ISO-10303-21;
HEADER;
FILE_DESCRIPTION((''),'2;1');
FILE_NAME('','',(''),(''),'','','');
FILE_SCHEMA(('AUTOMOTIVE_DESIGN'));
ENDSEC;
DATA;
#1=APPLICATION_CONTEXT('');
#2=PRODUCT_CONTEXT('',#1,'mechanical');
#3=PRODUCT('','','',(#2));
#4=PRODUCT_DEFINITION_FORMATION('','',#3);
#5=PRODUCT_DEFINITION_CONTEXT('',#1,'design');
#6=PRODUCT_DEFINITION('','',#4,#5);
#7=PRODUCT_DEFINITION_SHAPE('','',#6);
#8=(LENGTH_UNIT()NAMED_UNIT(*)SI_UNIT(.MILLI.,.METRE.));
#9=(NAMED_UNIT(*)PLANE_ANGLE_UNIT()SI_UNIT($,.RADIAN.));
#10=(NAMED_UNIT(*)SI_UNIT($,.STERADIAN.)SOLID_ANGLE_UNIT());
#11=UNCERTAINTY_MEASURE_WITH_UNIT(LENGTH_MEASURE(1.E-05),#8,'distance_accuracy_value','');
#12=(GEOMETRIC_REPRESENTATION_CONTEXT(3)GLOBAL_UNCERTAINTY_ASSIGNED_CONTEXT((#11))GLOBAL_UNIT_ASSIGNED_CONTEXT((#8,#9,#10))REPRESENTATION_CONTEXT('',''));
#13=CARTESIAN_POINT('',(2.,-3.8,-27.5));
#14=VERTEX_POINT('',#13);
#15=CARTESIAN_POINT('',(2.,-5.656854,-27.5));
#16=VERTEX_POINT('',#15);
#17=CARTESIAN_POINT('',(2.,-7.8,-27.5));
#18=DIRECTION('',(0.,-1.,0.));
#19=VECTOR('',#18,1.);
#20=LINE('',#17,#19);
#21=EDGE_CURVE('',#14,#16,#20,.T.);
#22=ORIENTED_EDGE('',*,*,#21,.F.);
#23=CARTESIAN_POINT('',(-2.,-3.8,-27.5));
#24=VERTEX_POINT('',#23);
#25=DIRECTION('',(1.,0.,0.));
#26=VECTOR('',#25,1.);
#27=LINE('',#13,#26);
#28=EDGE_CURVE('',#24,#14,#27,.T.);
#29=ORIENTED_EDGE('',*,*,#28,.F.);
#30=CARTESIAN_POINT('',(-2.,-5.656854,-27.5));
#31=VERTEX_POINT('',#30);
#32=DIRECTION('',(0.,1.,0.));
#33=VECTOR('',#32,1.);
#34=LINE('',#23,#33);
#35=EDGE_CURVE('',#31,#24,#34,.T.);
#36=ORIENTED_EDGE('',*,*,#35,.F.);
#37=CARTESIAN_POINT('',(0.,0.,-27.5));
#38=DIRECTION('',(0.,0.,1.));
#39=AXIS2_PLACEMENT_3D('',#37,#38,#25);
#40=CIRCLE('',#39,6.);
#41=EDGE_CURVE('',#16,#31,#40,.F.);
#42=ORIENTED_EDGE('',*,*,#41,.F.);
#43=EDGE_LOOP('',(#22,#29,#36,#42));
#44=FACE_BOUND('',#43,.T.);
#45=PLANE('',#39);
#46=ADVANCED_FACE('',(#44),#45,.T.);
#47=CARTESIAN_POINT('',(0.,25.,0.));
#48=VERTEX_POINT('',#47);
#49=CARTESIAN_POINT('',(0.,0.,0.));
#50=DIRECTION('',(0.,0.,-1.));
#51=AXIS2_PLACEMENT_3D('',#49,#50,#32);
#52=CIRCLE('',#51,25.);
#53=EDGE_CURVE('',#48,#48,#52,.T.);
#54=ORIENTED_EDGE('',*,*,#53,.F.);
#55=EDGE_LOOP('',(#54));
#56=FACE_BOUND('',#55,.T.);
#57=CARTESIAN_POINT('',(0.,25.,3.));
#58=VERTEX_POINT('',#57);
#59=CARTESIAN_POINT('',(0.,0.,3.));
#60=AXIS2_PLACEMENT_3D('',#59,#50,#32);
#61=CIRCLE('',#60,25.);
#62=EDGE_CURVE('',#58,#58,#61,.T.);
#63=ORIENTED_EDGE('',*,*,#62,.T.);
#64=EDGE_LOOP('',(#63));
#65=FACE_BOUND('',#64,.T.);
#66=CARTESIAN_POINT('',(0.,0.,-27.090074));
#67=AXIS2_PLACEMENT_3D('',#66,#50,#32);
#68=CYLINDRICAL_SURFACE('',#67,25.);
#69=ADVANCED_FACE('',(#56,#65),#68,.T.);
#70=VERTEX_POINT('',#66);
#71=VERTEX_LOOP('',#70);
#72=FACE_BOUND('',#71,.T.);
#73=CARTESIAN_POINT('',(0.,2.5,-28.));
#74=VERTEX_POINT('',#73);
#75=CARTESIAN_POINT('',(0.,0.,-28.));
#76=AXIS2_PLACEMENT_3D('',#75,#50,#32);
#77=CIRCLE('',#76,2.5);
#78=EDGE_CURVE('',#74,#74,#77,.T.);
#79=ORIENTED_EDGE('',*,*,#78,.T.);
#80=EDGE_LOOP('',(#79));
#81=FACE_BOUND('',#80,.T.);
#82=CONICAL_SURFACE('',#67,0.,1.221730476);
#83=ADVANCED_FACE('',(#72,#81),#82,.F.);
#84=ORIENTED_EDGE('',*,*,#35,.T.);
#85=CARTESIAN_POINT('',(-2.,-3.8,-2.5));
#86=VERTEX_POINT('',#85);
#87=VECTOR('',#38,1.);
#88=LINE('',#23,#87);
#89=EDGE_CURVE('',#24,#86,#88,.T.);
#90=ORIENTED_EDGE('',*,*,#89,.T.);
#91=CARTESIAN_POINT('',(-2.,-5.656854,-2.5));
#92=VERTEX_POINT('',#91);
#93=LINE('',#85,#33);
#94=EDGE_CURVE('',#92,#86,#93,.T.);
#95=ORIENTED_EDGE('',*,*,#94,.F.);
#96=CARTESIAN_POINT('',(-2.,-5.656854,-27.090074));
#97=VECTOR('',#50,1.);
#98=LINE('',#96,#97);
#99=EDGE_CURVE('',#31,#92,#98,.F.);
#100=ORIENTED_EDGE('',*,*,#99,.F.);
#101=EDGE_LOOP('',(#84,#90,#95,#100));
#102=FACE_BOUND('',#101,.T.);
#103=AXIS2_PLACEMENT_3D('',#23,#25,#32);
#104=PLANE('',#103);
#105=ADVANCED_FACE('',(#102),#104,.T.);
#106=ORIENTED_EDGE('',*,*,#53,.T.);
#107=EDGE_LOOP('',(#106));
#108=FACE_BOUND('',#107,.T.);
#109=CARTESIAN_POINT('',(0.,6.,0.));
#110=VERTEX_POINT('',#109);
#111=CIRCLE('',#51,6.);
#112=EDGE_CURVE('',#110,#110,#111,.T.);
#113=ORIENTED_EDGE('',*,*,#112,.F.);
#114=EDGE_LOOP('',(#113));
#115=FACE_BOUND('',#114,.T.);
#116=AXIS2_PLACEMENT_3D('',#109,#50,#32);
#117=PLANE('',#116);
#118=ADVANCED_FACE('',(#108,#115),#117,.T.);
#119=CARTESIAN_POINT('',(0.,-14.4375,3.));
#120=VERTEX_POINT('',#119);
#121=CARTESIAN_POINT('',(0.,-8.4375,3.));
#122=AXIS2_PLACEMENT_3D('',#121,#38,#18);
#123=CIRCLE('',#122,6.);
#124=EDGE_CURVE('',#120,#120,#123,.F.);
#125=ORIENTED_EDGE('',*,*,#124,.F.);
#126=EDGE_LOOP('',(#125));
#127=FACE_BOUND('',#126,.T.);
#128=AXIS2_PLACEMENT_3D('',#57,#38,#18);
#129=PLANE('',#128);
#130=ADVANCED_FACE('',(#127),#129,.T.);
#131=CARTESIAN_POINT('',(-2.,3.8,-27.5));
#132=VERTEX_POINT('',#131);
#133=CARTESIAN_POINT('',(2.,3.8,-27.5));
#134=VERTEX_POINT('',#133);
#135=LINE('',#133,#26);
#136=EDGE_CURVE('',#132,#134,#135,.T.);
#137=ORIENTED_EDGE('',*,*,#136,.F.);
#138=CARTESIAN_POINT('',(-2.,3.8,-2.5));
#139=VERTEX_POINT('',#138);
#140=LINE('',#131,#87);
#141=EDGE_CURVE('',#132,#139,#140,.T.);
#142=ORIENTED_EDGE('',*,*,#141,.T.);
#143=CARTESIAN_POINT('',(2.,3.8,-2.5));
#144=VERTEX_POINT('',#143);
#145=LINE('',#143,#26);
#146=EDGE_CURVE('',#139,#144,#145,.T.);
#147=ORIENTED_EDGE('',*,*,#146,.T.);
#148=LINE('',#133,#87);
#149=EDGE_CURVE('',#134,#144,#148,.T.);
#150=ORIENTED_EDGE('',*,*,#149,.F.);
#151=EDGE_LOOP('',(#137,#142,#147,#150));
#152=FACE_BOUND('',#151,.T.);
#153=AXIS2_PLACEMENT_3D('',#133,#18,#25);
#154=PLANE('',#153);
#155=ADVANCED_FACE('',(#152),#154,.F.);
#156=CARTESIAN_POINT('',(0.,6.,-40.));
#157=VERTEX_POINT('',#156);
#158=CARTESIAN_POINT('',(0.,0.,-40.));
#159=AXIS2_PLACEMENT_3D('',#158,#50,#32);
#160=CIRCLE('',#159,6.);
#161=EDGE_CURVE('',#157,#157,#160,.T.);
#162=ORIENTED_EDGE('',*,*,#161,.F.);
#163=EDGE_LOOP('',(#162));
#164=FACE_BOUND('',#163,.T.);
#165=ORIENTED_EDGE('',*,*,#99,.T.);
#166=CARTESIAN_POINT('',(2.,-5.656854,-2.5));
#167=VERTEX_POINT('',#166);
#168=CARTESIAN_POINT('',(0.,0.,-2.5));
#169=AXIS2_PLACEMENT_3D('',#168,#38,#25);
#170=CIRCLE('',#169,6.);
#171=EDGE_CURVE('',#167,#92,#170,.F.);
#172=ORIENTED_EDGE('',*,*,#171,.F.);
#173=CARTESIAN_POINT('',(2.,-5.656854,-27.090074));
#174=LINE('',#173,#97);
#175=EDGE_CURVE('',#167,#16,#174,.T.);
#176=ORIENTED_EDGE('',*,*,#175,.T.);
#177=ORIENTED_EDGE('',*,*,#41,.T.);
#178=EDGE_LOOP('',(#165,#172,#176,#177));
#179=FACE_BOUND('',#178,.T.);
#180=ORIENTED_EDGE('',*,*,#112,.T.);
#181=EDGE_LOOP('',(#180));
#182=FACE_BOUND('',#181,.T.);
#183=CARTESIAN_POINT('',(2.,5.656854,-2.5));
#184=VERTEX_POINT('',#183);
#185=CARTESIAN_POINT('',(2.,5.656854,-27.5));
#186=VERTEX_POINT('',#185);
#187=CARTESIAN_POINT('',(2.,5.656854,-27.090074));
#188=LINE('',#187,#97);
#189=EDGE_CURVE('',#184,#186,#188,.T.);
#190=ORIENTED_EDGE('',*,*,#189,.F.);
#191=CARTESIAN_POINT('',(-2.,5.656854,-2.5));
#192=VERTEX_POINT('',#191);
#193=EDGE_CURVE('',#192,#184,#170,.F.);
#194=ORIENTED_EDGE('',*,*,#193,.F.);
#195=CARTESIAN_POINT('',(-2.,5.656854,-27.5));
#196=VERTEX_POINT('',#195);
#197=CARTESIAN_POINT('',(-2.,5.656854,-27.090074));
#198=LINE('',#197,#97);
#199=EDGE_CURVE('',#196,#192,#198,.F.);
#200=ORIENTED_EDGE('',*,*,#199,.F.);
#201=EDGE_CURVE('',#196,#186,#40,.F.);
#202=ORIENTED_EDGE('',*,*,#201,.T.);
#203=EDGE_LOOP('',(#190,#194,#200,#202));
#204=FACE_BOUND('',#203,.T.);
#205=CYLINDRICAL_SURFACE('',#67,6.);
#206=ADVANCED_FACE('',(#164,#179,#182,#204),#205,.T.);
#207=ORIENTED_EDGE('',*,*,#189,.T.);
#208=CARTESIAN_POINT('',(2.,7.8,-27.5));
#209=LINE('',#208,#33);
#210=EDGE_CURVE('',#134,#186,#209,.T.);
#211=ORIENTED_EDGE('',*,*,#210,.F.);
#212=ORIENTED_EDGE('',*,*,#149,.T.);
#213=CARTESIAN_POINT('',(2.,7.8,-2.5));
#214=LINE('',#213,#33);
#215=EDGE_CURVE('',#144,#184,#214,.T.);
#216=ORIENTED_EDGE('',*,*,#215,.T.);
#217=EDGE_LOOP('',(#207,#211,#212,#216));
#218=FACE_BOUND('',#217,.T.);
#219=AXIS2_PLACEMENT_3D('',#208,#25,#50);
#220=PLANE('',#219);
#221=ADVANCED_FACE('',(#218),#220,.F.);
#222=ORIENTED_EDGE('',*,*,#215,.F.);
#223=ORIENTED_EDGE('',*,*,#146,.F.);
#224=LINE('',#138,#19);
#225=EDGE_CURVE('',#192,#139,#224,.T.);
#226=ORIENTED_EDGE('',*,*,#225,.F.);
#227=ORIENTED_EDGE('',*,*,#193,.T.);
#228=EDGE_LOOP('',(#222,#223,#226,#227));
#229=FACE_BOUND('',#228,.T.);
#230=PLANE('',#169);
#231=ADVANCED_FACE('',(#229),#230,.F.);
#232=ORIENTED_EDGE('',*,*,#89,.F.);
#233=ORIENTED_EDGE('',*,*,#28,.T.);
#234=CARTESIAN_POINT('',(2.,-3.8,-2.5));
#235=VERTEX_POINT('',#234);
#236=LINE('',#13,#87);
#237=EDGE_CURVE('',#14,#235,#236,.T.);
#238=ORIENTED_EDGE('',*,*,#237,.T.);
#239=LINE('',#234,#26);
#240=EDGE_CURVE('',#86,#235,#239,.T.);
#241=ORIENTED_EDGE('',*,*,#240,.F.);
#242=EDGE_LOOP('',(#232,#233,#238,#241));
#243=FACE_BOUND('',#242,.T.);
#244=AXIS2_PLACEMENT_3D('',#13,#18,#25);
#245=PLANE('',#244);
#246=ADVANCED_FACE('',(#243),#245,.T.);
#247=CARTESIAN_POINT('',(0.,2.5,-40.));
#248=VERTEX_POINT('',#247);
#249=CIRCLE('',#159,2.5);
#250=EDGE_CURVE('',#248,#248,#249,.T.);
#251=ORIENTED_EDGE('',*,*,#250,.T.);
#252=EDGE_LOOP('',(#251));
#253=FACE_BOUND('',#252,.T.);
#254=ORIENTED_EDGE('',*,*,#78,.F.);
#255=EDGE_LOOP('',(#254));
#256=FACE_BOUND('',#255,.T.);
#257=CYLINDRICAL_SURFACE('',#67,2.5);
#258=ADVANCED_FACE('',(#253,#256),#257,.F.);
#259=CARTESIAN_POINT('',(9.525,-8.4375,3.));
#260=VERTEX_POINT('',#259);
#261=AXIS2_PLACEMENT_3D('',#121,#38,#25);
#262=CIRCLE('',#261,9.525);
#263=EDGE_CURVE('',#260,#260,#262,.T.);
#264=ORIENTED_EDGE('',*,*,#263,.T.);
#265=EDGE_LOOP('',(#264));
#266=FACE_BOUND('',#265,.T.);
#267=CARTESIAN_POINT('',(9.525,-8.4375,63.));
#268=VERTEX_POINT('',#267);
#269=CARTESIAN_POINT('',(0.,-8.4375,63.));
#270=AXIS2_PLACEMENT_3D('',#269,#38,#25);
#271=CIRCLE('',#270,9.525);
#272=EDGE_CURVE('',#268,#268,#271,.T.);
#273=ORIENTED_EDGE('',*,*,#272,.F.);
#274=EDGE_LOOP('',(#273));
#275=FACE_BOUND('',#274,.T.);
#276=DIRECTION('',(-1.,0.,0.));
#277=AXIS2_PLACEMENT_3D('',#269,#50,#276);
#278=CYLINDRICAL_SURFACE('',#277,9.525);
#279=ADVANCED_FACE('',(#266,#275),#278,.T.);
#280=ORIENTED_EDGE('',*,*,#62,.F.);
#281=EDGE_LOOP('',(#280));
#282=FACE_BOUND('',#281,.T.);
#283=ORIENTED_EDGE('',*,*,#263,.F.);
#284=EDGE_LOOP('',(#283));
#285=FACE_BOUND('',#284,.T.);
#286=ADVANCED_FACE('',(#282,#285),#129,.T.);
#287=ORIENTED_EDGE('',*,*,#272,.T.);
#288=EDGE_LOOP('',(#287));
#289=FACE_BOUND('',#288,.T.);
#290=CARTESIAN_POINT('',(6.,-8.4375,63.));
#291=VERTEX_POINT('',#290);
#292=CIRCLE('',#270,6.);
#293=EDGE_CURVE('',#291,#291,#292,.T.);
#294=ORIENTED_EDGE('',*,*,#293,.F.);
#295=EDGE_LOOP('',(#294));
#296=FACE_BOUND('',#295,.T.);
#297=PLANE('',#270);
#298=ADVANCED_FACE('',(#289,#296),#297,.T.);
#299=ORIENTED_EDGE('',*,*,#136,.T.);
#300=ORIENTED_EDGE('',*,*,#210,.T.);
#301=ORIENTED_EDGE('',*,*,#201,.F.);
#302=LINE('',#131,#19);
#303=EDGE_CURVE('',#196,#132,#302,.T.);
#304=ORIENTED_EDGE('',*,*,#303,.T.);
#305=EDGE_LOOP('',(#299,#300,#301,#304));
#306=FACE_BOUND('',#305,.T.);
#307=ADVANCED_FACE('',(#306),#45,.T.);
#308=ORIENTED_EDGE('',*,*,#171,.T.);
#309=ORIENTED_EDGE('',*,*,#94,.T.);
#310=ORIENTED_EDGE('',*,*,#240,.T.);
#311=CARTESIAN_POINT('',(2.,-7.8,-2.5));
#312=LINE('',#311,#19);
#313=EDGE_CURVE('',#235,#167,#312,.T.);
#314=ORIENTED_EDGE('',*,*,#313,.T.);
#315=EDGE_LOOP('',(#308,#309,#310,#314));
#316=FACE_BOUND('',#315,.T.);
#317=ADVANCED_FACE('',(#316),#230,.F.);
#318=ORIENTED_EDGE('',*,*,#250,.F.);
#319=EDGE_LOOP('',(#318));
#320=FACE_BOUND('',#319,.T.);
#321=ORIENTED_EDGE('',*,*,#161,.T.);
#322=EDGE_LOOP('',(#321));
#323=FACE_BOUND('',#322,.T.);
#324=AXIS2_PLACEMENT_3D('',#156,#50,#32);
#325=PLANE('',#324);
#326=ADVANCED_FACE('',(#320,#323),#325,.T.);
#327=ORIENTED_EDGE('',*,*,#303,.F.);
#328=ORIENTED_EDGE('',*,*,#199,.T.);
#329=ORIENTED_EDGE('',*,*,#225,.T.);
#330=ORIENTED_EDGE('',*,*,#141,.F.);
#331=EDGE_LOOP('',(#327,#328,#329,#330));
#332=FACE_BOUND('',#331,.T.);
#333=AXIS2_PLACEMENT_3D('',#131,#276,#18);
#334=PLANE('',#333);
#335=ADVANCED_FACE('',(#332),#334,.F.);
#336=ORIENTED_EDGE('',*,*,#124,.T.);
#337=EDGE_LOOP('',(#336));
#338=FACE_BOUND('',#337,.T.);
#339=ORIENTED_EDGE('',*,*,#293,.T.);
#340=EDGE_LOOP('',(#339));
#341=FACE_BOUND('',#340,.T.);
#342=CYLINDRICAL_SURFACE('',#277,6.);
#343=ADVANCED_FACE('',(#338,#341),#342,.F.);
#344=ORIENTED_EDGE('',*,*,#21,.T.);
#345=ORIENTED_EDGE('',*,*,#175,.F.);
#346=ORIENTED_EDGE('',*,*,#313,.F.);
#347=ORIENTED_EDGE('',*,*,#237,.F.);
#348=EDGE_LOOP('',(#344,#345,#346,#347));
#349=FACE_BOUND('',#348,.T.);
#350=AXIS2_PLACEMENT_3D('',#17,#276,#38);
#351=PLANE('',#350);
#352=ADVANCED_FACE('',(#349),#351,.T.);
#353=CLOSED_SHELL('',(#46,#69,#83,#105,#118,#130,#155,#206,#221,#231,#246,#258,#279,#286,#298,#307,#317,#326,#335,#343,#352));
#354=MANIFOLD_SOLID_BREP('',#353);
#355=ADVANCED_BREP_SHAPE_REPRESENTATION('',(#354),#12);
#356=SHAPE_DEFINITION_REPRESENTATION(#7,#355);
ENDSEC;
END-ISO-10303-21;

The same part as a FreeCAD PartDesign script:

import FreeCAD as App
import Part
import Sketcher

V = App.Vector
Q = App.Units.Quantity

doc = App.newDocument("Part")
body = doc.addObject("PartDesign::Body", "Body")

# Sketch on YZ plane
sketch1 = body.newObject("Sketcher::SketchObject", "Sketch")
sketch1.AttachmentSupport = (doc.getObject("YZ_Plane"), [""])
sketch1.MapMode = "FlatFace"
sketch1.addGeometry(Part.LineSegment(V(6, 0, 0), V(25, 0, 0)), False)
sketch1.addGeometry(Part.LineSegment(V(25, 0, 0), V(25, 3, 0)), False)
sketch1.addGeometry(Part.LineSegment(V(25, 3, 0), V(0, 3, 0)), False)
sketch1.addGeometry(Part.LineSegment(V(0, 3, 0), V(0, -27.1, 0)), False)
sketch1.addGeometry(Part.LineSegment(V(0, -27.1, 0), V(2.5, -28, 0)), False)
sketch1.addGeometry(Part.LineSegment(V(2.5, -28, 0), V(2.5, -40, 0)), False)
sketch1.addGeometry(Part.LineSegment(V(2.5, -40, 0), V(6, -40, 0)), False)
sketch1.addGeometry(Part.LineSegment(V(6, -40, 0), V(6, 0, 0)), False)
sketch1.addConstraint(Sketcher.Constraint("Coincident", 0, 2, 1, 1))
sketch1.addConstraint(Sketcher.Constraint("Coincident", 1, 2, 2, 1))
sketch1.addConstraint(Sketcher.Constraint("Coincident", 2, 2, 3, 1))
sketch1.addConstraint(Sketcher.Constraint("Coincident", 3, 2, 4, 1))
sketch1.addConstraint(Sketcher.Constraint("Coincident", 4, 2, 5, 1))
sketch1.addConstraint(Sketcher.Constraint("Coincident", 5, 2, 6, 1))
sketch1.addConstraint(Sketcher.Constraint("Coincident", 6, 2, 7, 1))
sketch1.addConstraint(Sketcher.Constraint("Coincident", 7, 2, 0, 1))
sketch1.addConstraint(Sketcher.Constraint("Horizontal", 0))
sketch1.addConstraint(Sketcher.Constraint("Vertical", 1))
sketch1.addConstraint(Sketcher.Constraint("Horizontal", 2))
sketch1.addConstraint(Sketcher.Constraint("Vertical", 3))
sketch1.addConstraint(Sketcher.Constraint("Vertical", 5))
sketch1.addConstraint(Sketcher.Constraint("Horizontal", 6))
sketch1.addConstraint(Sketcher.Constraint("Vertical", 7))
sketch1.addConstraint(Sketcher.Constraint("PointOnObject", 0, 2, -1))
sketch1.addConstraint(Sketcher.Constraint("PointOnObject", 2, 2, -2))
sketch1.addConstraint(Sketcher.Constraint("DistanceX", 0, 1, 0, 2, 19.0))
sketch1.addConstraint(Sketcher.Constraint("DistanceX", 2, 2, 2, 1, 25.0))
sketch1.addConstraint(Sketcher.Constraint("DistanceY", 1, 1, 1, 2, 3.0))
sketch1.addConstraint(Sketcher.Constraint("DistanceY", 5, 2, 5, 1, 12.0))
sketch1.addConstraint(Sketcher.Constraint("DistanceY", 7, 1, 7, 2, 40.0))
sketch1.addConstraint(Sketcher.Constraint("Angle", 4, Q("-20 deg")))
sketch1.addConstraint(Sketcher.Constraint("DistanceX", 6, 1, 6, 2, 3.5))
revolution = body.newObject("PartDesign::Revolution", "Revolution")
revolution.Profile = sketch1
revolution.ReferenceAxis = (sketch1, ["V_Axis"])
revolution.Angle = 360

# Sketch on XY plane
sketch2 = body.newObject("Sketcher::SketchObject", "Sketch001")
sketch2.AttachmentSupport = (doc.getObject("XY_Plane"), [""])
sketch2.MapMode = "FlatFace"
sketch2.AttachmentOffset = App.Placement(V(0, 0, 3), App.Rotation())
sketch2.addGeometry(Part.Circle(V(0, -8, 0), V(0, 0, 1), 10), False)
sketch2.addGeometry(Part.Circle(V(0, -8, 0), V(0, 0, 1), 6), False)
sketch2.addConstraint(Sketcher.Constraint("Coincident", 1, 3, 0, 3))
sketch2.addConstraint(Sketcher.Constraint("PointOnObject", 0, 3, -2))
sketch2.addConstraint(Sketcher.Constraint("Diameter", 1, 12.0))
sketch2.addConstraint(Sketcher.Constraint("Diameter", 0, 19.05))
sketch2.addConstraint(Sketcher.Constraint("DistanceY", 0, 3, -1, 1, 8.4375))
pad1 = body.newObject("PartDesign::Pad", "Pad")
pad1.Profile = sketch2
pad1.Length = 60

# Sketch on XY plane
sketch3 = body.newObject("Sketcher::SketchObject", "Sketch002")
sketch3.AttachmentSupport = (doc.getObject("XY_Plane"), [""])
sketch3.MapMode = "FlatFace"
sketch3.AttachmentOffset = App.Placement(V(0, 0, -2.5), App.Rotation())
sketch3.addGeometry(Part.LineSegment(V(2, -3.8, 0), V(2, -7.8, 0)), False)
sketch3.addGeometry(Part.LineSegment(V(2, -7.8, 0), V(-2, -7.8, 0)), False)
sketch3.addGeometry(Part.LineSegment(V(-2, -7.8, 0), V(-2, -3.8, 0)), False)
sketch3.addGeometry(Part.LineSegment(V(-2, -3.8, 0), V(2, -3.8, 0)), False)
sketch3.addConstraint(Sketcher.Constraint("Coincident", 0, 2, 1, 1))
sketch3.addConstraint(Sketcher.Constraint("Coincident", 1, 2, 2, 1))
sketch3.addConstraint(Sketcher.Constraint("Coincident", 2, 2, 3, 1))
sketch3.addConstraint(Sketcher.Constraint("Coincident", 3, 2, 0, 1))
sketch3.addConstraint(Sketcher.Constraint("Vertical", 0))
sketch3.addConstraint(Sketcher.Constraint("Horizontal", 1))
sketch3.addConstraint(Sketcher.Constraint("Vertical", 2))
sketch3.addConstraint(Sketcher.Constraint("Horizontal", 3))
sketch3.addConstraint(Sketcher.Constraint("Equal", 3, 0))
sketch3.addConstraint(Sketcher.Constraint("DistanceX", 1, 2, 1, 1, 4.0))
sketch3.addConstraint(Sketcher.Constraint("DistanceX", -1, 1, 0, 2, 2.0))
sketch3.addConstraint(Sketcher.Constraint("DistanceY", 0, 2, -1, 1, 7.8))
pocket1 = body.newObject("PartDesign::Pocket", "Pocket")
pocket1.Profile = sketch3
pocket1.Length = 25
doc.recompute()

mirrored = body.newObject("PartDesign::Mirrored", "Mirrored")
mirrored.Originals = [pocket1]
mirrored.MirrorPlane = (doc.getObject("XZ_Plane"), [""])
body.Tip = mirrored

doc.recompute()
